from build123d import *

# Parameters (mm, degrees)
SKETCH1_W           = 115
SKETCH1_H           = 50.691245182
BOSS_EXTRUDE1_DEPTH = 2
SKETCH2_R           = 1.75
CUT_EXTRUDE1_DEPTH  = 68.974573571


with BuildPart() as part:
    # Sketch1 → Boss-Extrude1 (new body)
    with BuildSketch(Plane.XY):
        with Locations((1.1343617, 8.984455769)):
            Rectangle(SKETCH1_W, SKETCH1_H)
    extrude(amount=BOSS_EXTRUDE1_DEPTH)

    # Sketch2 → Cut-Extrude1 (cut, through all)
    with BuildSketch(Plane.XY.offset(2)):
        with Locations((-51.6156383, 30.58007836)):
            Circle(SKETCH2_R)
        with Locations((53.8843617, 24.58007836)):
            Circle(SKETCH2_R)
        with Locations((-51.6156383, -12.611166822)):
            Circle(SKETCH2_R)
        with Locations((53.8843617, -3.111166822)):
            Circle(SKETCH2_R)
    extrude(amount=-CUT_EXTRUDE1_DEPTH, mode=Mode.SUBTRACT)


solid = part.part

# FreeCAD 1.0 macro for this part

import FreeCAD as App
import Part
import Sketcher
from FreeCAD import Vector
Q = App.Units.Quantity

doc = App.newDocument("Part")
body = doc.addObject("PartDesign::Body", "Body")

# Sketch on XY plane
sketch1 = doc.addObject("Sketcher::SketchObject", "Sketch")
body.addObject(sketch1)
sketch1.AttachmentSupport = (doc.XY_Plane, [""])
sketch1.MapMode = "FlatFace"
sketch1.addGeometry([
    Part.LineSegment(Vector(-56, 34, 0), Vector(-56, -16, 0)),
    Part.LineSegment(Vector(-56, -16, 0), Vector(59, -16, 0)),
    Part.LineSegment(Vector(59, -16, 0), Vector(59, 34, 0)),
    Part.LineSegment(Vector(59, 34, 0), Vector(-56, 34, 0)),
], False)
sketch1.addConstraint([
    Sketcher.Constraint("Coincident", 0, 2, 1, 1),
    Sketcher.Constraint("Coincident", 1, 2, 2, 1),
    Sketcher.Constraint("Coincident", 2, 2, 3, 1),
    Sketcher.Constraint("Coincident", 3, 2, 0, 1),
    Sketcher.Constraint("Vertical", 0),
    Sketcher.Constraint("Horizontal", 1),
    Sketcher.Constraint("Vertical", 2),
    Sketcher.Constraint("Horizontal", 3),
    Sketcher.Constraint("DistanceX", 1, 1, 1, 2, Q("115 mm")),
    Sketcher.Constraint("DistanceY", 0, 2, 0, 1, Q("50.691245 mm")),
    Sketcher.Constraint("DistanceX", 0, 2, -1, 1, Q("56.365638 mm")),
    Sketcher.Constraint("DistanceY", -1, 1, 2, 2, Q("34.330078 mm")),
])
pad1 = doc.addObject("PartDesign::Pad", "Pad")
body.addObject(pad1)
pad1.Profile = sketch1
pad1.Length = 2

# Sketch on XY plane
sketch2 = doc.addObject("Sketcher::SketchObject", "Sketch001")
body.addObject(sketch2)
sketch2.AttachmentSupport = (doc.XY_Plane, [""])
sketch2.MapMode = "FlatFace"
sketch2.AttachmentOffset = App.Placement(Vector(0, 0, 2), App.Rotation())
sketch2.addGeometry([
    Part.Circle(Vector(-51.6, 30.6, 0), Vector(0, 0, 1), 1.8),
    Part.Circle(Vector(53.9, 24.6, 0), Vector(0, 0, 1), 1.8),
    Part.Circle(Vector(-51.6, -12.6, 0), Vector(0, 0, 1), 1.8),
    Part.Circle(Vector(53.9, -3.1, 0), Vector(0, 0, 1), 1.8),
], False)
sketch2.addConstraint([
    Sketcher.Constraint("Equal", 0, 1),
    Sketcher.Constraint("Equal", 1, 2),
    Sketcher.Constraint("Equal", 2, 3),
    Sketcher.Constraint("Vertical", 0, 3, 2, 3),
    Sketcher.Constraint("Vertical", 1, 3, 3, 3),
    Sketcher.Constraint("Diameter", 0, Q("3.5 mm")),
    Sketcher.Constraint("DistanceY", 1, 3, 0, 3, Q("6 mm")),
    Sketcher.Constraint("DistanceX", 0, 3, 1, 3, Q("105.5 mm")),
    Sketcher.Constraint("DistanceY", 2, 3, 3, 3, Q("9.5 mm")),
    Sketcher.Constraint("DistanceX", 0, 3, -1, 1, Q("51.615638 mm")),
    Sketcher.Constraint("DistanceY", -1, 1, 0, 3, Q("30.580078 mm")),
    Sketcher.Constraint("DistanceY", 2, 3, -1, 1, Q("12.611167 mm")),
])
pocket1 = doc.addObject("PartDesign::Pocket", "Pocket")
body.addObject(pocket1)
pocket1.Profile = sketch2
pocket1.Type = "ThroughAll"

doc.recompute()
